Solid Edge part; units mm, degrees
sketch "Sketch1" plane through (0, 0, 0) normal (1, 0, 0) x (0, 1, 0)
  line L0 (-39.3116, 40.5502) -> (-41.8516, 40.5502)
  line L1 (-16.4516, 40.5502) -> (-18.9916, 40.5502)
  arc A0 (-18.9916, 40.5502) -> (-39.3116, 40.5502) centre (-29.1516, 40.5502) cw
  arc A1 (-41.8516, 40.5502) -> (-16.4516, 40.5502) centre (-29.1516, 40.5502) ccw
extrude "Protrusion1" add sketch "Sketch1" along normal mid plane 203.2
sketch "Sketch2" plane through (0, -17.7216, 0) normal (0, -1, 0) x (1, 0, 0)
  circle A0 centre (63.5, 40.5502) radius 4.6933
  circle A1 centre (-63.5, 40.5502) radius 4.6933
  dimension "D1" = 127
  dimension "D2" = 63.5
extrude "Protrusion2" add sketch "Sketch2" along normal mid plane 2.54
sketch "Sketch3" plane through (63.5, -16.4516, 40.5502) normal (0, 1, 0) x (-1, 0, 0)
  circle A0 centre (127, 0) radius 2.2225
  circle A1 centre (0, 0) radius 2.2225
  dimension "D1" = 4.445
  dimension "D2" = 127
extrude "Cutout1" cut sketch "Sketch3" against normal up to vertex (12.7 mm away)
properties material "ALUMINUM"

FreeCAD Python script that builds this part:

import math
import FreeCAD as App
import Part
import Sketcher
Q = App.Units.Quantity

doc = App.newDocument("Part")
body = doc.addObject("PartDesign::Body", "Body")

# Sketch on YZ plane
sketch1 = body.newObject("Sketcher::SketchObject", "Sketch")
sketch1.AttachmentSupport = (doc.getObject("YZ_Plane"), [""])
sketch1.MapMode = "FlatFace"
sketch1.addGeometry(Part.ArcOfCircle(Part.Circle(App.Vector(-29.2, 40.6, 0), App.Vector(0, 0, 1), 10.2), math.radians(180), math.radians(360)), False)
sketch1.addGeometry(Part.LineSegment(App.Vector(-39.3, 40.6, 0), App.Vector(-41.9, 40.6, 0)), False)
sketch1.addGeometry(Part.ArcOfCircle(Part.Circle(App.Vector(-29.2, 40.6, 0), App.Vector(0, 0, 1), 12.7), math.radians(180), math.radians(360)), False)
sketch1.addGeometry(Part.LineSegment(App.Vector(-16.5, 40.6, 0), App.Vector(-19, 40.6, 0)), False)
sketch1.addConstraint(Sketcher.Constraint("Coincident", 0, 1, 1, 1))
sketch1.addConstraint(Sketcher.Constraint("Coincident", 1, 2, 2, 1))
sketch1.addConstraint(Sketcher.Constraint("Coincident", 2, 2, 3, 1))
sketch1.addConstraint(Sketcher.Constraint("Coincident", 3, 2, 0, 2))
sketch1.addConstraint(Sketcher.Constraint("Horizontal", 1))
sketch1.addConstraint(Sketcher.Constraint("Horizontal", 3))
sketch1.addConstraint(Sketcher.Constraint("Coincident", 2, 3, 0, 3))
sketch1.addConstraint(Sketcher.Constraint("Horizontal", 2, 3, 0, 1))
sketch1.addConstraint(Sketcher.Constraint("Horizontal", 1, 2, 2, 2))
sketch1.addConstraint(Sketcher.Constraint("Radius", 0, Q("0.4 in")))
sketch1.addConstraint(Sketcher.Constraint("Radius", 2, Q("0.5 in")))
sketch1.addConstraint(Sketcher.Constraint("DistanceX", 0, 3, -1, 1, Q("1.1477 in")))
sketch1.addConstraint(Sketcher.Constraint("DistanceY", -1, 1, 0, 3, 40.5502))
pad1 = body.newObject("PartDesign::Pad", "Pad")
pad1.Profile = sketch1
pad1.Length = Q("8 in")
pad1.Midplane = True

# Sketch on XZ plane
sketch2 = body.newObject("Sketcher::SketchObject", "Sketch001")
sketch2.AttachmentSupport = (doc.getObject("XZ_Plane"), [""])
sketch2.MapMode = "FlatFace"
sketch2.AttachmentOffset = App.Placement(App.Vector(0, 0, 0.6977008 * 25.4), App.Rotation())
sketch2.addGeometry(Part.Circle(App.Vector(63.5, 40.6, 0), App.Vector(0, 0, 1), 4.7), False)
sketch2.addGeometry(Part.Circle(App.Vector(-63.5, 40.6, 0), App.Vector(0, 0, 1), 4.7), False)
sketch2.addConstraint(Sketcher.Constraint("Equal", 0, 1))
sketch2.addConstraint(Sketcher.Constraint("Symmetric", 0, 3, 1, 3, -2))
sketch2.addConstraint(Sketcher.Constraint("DistanceX", 1, 3, 0, 3, Q("5 in")))
sketch2.addConstraint(Sketcher.Constraint("Diameter", 0, 9.3866))
sketch2.addConstraint(Sketcher.Constraint("DistanceY", -1, 1, 0, 3, 40.5502))
pad2 = body.newObject("PartDesign::Pad", "Pad001")
pad2.Profile = sketch2
pad2.Length = Q("0.1 in")
pad2.Midplane = True

# Sketch on XZ plane
sketch3 = body.newObject("Sketcher::SketchObject", "Sketch002")
sketch3.AttachmentSupport = (doc.getObject("XZ_Plane"), [""])
sketch3.MapMode = "FlatFace"
sketch3.AttachmentOffset = App.Placement(App.Vector(0, 0, 0.6477008 * 25.4), App.Rotation())
sketch3.addGeometry(Part.Circle(App.Vector(-63.5, 40.6, 0), App.Vector(0, 0, 1), 2.2), False)
sketch3.addGeometry(Part.Circle(App.Vector(63.5, 40.6, 0), App.Vector(0, 0, 1), 2.2), False)
sketch3.addConstraint(Sketcher.Constraint("Equal", 0, 1))
sketch3.addConstraint(Sketcher.Constraint("Symmetric", 0, 3, 1, 3, -2))
sketch3.addConstraint(Sketcher.Constraint("Diameter", 0, Q("0.175 in")))
sketch3.addConstraint(Sketcher.Constraint("DistanceX", 0, 3, 1, 3, Q("5 in")))
sketch3.addConstraint(Sketcher.Constraint("DistanceY", -1, 1, 0, 3, 40.5502))
pocket1 = body.newObject("PartDesign::Pocket", "Pocket")
pocket1.Profile = sketch3
pocket1.Length = Q("0.5 in")
pocket1.Reversed = True

doc.recompute()
